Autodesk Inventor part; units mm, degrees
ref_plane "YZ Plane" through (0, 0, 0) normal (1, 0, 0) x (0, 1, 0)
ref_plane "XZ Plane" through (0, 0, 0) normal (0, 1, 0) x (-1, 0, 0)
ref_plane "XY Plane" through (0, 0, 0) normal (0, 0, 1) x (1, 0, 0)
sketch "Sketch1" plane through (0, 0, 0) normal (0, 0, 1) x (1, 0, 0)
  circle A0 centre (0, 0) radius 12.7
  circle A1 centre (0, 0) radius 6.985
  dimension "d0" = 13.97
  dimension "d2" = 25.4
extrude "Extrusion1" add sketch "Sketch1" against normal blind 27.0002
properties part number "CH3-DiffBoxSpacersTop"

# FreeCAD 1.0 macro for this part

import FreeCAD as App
import Part
import Sketcher
Q = App.Units.Quantity

doc = App.newDocument("Part")
body = doc.addObject("PartDesign::Body", "Body")

sketch1 = body.newObject("Sketcher::SketchObject", "Sketch")
sketch1.AttachmentSupport = (doc.getObject("XY_Plane"), [""])
sketch1.MapMode = "FlatFace"
sketch1.addGeometry([
    Part.Circle(App.Vector(0, 0, 0), App.Vector(0, 0, 1), 12.7),
    Part.Circle(App.Vector(0, 0, 0), App.Vector(0, 0, 1), 6.985),
], False)
sketch1.addConstraint([
    Sketcher.Constraint("Coincident", 0, 3, -1, 1),
    Sketcher.Constraint("Coincident", 1, 3, -1, 1),
    Sketcher.Constraint("Diameter", 0, Q("1 in")),
    Sketcher.Constraint("Diameter", 1, Q("0.55 in")),
])
pad1 = body.newObject("PartDesign::Pad", "Pad")
pad1.Profile = sketch1
pad1.Length = Q("1.063 in")
pad1.Reversed = True

doc.recompute()
